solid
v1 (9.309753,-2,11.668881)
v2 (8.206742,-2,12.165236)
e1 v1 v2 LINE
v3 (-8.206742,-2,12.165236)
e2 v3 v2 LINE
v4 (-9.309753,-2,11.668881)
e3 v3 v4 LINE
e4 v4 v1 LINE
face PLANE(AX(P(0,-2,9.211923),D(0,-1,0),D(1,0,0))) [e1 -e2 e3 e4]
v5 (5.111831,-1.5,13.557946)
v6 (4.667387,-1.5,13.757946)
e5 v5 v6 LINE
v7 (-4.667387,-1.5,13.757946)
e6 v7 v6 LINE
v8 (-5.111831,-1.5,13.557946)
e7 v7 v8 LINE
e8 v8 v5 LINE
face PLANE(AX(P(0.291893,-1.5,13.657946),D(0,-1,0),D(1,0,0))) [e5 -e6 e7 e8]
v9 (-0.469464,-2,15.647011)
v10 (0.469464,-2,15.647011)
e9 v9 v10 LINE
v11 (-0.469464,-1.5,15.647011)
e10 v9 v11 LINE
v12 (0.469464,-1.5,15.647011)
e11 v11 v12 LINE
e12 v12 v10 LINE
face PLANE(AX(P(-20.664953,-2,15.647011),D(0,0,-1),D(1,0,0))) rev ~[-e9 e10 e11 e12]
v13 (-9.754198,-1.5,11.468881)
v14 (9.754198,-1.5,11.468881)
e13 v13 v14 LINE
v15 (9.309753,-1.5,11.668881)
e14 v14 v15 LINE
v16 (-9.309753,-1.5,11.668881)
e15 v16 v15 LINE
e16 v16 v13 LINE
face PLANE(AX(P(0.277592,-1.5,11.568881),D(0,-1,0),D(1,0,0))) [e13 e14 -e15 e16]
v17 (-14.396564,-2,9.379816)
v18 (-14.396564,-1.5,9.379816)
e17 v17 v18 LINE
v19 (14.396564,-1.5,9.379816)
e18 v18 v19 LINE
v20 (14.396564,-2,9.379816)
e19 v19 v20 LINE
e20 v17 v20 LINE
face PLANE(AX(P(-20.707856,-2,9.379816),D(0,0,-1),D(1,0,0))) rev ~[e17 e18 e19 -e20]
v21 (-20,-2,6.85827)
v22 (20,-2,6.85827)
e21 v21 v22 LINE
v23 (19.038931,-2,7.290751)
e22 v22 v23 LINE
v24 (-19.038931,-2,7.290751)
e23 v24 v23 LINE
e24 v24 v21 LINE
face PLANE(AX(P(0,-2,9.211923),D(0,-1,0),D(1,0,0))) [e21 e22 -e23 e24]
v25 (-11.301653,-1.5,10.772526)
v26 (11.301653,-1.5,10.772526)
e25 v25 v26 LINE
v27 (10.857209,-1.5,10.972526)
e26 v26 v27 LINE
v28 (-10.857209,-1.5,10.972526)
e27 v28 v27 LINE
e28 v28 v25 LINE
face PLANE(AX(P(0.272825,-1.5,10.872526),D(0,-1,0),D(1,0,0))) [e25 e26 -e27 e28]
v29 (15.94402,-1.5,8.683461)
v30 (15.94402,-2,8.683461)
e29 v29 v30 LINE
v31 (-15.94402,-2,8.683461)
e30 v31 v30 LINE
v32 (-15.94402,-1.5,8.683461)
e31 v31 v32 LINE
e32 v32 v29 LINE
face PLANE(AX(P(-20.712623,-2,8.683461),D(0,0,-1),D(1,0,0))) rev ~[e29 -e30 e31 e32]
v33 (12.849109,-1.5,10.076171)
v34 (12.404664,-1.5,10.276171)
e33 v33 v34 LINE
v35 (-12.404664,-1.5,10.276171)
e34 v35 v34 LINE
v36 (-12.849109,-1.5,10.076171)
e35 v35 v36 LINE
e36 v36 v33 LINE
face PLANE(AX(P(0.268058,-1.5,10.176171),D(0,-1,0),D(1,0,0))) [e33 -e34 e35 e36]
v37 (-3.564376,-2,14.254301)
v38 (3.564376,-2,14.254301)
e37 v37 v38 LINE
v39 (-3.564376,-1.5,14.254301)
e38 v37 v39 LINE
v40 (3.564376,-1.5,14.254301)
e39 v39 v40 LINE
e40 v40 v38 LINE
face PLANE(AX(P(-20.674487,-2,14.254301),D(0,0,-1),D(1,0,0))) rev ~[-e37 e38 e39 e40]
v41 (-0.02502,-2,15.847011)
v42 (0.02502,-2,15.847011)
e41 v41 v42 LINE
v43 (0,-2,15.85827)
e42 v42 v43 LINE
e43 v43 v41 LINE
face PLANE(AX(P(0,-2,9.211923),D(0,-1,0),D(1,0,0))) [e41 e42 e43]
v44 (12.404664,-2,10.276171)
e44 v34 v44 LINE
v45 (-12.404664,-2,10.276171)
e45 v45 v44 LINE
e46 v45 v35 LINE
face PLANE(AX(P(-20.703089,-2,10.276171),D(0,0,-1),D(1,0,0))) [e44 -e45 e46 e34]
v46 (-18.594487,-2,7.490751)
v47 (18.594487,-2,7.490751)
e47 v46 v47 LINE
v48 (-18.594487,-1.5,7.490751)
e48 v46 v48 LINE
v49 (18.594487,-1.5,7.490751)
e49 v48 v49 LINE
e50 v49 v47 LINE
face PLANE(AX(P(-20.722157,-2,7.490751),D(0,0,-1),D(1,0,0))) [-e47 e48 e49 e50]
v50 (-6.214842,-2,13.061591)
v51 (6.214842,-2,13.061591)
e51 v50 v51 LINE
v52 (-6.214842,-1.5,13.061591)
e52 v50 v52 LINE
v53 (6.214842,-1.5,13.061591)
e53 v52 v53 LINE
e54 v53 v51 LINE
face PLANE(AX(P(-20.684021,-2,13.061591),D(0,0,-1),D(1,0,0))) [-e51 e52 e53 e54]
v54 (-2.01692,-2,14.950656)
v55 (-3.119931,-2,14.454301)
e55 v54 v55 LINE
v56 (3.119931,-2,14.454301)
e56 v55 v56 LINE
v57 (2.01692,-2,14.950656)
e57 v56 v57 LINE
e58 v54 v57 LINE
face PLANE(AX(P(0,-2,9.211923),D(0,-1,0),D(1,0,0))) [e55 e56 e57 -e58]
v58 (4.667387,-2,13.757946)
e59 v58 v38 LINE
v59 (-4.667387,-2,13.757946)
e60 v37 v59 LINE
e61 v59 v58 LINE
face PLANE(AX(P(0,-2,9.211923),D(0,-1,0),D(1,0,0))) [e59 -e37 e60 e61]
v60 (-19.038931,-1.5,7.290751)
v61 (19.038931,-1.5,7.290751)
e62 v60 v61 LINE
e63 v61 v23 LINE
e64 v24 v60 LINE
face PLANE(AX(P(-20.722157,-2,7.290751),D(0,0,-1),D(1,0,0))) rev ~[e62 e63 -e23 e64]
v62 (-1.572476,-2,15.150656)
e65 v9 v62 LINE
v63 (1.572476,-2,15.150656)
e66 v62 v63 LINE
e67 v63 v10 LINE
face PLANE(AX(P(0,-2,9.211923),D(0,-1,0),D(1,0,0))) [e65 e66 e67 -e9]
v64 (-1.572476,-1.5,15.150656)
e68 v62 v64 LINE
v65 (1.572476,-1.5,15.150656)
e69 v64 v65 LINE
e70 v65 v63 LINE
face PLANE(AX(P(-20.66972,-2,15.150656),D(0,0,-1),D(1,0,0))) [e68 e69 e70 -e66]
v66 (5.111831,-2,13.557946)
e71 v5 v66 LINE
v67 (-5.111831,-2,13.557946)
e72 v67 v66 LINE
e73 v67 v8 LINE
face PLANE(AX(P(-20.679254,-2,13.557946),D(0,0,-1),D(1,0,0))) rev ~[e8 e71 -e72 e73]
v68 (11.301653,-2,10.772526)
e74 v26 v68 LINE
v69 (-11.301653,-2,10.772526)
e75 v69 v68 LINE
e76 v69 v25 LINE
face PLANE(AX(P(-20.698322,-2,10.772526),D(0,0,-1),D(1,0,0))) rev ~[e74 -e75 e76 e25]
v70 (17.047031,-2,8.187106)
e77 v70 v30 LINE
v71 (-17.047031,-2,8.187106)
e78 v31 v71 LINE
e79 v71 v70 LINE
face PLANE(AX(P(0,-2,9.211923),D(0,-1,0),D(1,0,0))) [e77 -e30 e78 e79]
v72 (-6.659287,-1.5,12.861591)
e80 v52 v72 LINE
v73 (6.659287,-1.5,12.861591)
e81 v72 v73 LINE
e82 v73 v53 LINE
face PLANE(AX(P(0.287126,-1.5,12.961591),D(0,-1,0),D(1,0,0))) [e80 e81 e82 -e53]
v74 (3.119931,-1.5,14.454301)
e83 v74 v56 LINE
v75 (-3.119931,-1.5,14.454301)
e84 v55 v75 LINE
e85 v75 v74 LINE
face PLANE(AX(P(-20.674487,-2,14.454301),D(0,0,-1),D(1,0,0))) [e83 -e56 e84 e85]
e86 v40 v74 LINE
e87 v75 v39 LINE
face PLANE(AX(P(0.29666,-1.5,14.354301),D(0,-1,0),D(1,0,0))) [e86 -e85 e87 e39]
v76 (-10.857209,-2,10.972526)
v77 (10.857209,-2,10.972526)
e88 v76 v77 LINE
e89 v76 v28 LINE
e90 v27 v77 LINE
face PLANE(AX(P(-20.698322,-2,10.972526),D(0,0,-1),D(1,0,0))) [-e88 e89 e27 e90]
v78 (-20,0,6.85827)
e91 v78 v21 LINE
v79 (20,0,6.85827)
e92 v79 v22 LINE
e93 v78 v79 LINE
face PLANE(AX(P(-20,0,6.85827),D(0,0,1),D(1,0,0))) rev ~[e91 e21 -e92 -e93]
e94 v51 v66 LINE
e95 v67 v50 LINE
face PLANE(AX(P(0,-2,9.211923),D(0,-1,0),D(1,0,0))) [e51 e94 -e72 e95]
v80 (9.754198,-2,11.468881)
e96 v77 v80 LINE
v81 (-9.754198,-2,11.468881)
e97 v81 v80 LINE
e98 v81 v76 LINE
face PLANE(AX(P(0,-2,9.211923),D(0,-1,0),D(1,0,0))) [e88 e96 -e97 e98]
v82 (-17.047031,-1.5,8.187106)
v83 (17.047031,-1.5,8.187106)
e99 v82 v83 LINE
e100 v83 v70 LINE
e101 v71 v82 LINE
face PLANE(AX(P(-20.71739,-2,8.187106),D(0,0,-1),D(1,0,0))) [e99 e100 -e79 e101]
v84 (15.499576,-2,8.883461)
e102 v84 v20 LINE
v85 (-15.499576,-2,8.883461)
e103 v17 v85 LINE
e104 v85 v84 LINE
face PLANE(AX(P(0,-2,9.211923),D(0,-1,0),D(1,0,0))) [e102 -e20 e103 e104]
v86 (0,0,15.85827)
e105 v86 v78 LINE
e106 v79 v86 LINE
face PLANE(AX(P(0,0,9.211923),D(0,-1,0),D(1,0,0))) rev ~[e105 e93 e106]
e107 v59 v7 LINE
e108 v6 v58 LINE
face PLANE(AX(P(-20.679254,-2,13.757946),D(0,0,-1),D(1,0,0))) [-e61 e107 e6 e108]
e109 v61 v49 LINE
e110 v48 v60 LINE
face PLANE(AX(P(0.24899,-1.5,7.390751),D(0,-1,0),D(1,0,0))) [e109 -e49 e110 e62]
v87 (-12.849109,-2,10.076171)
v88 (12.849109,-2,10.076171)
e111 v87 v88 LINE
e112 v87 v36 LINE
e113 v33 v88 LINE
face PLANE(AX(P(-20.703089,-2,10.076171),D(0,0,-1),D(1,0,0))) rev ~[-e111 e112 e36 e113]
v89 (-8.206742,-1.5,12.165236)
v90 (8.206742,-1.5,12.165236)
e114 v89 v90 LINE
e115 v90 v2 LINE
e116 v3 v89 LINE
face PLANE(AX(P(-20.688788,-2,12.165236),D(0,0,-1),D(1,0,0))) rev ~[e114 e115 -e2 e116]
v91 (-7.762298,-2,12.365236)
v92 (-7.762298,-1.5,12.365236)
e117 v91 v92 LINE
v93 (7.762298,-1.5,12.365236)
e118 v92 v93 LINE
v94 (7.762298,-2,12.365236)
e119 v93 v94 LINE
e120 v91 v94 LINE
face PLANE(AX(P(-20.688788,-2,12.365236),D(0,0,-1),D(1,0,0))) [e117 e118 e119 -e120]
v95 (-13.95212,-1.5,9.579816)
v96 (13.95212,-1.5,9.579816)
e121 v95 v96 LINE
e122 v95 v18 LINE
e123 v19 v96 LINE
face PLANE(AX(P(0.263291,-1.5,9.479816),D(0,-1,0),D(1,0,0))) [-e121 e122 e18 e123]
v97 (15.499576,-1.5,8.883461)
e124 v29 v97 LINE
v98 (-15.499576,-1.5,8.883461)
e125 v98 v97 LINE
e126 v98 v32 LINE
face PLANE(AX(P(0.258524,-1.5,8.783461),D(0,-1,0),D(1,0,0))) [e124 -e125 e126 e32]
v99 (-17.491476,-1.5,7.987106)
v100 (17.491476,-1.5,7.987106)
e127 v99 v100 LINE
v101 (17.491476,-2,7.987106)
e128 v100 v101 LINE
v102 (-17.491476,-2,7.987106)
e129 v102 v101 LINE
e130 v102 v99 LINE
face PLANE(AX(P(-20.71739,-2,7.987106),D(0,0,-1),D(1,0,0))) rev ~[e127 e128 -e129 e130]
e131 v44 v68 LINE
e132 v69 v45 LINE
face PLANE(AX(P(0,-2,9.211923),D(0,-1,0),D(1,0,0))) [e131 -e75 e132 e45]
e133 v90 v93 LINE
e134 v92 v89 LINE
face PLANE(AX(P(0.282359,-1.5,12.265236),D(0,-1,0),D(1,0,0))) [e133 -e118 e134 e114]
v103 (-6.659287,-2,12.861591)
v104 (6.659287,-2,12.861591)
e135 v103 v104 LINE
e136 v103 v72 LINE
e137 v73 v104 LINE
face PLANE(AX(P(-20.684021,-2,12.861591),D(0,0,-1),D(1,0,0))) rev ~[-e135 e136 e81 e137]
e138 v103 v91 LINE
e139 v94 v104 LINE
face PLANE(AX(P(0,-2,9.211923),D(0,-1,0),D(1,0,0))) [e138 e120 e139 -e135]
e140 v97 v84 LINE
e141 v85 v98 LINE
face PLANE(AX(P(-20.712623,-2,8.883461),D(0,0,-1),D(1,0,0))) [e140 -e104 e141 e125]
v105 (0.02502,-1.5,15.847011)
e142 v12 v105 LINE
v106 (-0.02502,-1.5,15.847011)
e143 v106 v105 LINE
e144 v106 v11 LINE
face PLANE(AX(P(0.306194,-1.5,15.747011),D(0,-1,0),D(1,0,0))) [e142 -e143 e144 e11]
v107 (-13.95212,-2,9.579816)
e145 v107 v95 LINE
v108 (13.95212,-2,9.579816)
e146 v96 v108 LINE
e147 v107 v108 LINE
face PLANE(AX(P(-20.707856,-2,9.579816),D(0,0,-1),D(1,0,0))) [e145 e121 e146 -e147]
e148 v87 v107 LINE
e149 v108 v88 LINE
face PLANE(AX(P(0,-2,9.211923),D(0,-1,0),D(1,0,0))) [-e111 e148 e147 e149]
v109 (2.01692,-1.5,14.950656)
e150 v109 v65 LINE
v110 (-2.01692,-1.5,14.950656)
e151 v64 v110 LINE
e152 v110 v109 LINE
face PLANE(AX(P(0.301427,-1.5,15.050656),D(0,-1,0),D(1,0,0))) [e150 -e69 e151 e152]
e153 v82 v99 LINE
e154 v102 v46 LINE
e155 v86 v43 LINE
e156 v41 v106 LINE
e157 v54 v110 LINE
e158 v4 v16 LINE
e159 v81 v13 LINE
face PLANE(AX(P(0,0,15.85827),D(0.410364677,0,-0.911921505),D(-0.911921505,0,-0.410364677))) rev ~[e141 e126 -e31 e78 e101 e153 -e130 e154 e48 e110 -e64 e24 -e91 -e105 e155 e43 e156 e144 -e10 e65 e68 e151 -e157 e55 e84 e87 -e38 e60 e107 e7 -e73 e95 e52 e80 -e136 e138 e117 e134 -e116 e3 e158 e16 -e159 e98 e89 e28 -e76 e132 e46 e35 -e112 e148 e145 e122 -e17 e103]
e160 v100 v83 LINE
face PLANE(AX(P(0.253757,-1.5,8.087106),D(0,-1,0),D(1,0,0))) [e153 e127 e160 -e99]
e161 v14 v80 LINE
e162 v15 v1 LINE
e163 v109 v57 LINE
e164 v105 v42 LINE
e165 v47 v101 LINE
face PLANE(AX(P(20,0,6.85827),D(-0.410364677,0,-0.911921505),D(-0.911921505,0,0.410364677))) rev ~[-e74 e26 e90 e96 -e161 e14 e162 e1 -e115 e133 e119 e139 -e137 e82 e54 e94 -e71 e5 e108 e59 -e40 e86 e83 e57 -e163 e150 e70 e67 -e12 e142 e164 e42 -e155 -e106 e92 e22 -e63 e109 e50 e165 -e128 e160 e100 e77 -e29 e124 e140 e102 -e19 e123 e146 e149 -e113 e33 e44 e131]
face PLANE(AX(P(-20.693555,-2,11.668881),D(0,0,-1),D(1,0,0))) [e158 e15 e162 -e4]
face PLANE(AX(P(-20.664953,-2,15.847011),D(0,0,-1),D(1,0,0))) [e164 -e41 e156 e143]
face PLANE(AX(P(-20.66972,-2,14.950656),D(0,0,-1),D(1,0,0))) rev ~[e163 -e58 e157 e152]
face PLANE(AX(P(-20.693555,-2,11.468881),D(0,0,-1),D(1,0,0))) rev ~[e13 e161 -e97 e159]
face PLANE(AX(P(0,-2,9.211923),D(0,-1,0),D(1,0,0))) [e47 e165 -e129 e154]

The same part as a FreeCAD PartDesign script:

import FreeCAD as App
import Part
import Sketcher
from FreeCAD import Vector
Q = App.Units.Quantity


def add_polygon(sketch, points):
    """Adds a closed chain of lines whose ends are joined by coincident constraints."""
    first, n = sketch.GeometryCount, len(points)
    for a, b in zip(points, points[1:] + points[:1]):
        sketch.addGeometry(Part.LineSegment(App.Vector(*a, 0), App.Vector(*b, 0)), False)
    for i in range(n):
        sketch.addConstraint(Sketcher.Constraint("Coincident", first + i, 2, first + (i + 1) % n, 1))

doc = App.newDocument("Part")
body = doc.addObject("PartDesign::Body", "Body")

sketch1 = doc.addObject("Sketcher::SketchObject", "Sketch")
body.addObject(sketch1)
sketch1.AttachmentSupport = (doc.XZ_Plane, [""])
sketch1.MapMode = "FlatFace"
add_polygon(sketch1, [(-20, 7), (20, 7), (0, 16)])
sketch1.addConstraint([
    Sketcher.Constraint("Horizontal", 0),
    Sketcher.Constraint("PointOnObject", 1, 2, -2),
    Sketcher.Constraint("Equal", 1, 2),
    Sketcher.Constraint("DistanceX", 0, 1, 0, 2, Q("40 mm")),
    Sketcher.Constraint("DistanceY", 0, 2, 1, 2, Q("9 mm")),
    Sketcher.Constraint("DistanceY", -1, 1, 0, 2, Q("6.85827 mm")),
])
pad1 = doc.addObject("PartDesign::Pad", "Pad")
body.addObject(pad1)
pad1.Profile = sketch1
pad1.Length = 2

sketch2 = doc.addObject("Sketcher::SketchObject", "Sketch001")
body.addObject(sketch2)
sketch2.AttachmentSupport = (doc.XZ_Plane, [""])
sketch2.MapMode = "FlatFace"
sketch2.AttachmentOffset = App.Placement(Vector(0, 0, 2), App.Rotation())
add_polygon(sketch2, [(-20.72, 7.49), (-20.72, 7.29), (21.22, 7.29), (21.22, 7.49)])
add_polygon(sketch2, [(-20.72, 8.19), (-20.72, 7.99), (21.22, 7.99), (21.22, 8.19)])
add_polygon(sketch2, [(-20.71, 8.88), (-20.71, 8.68), (21.23, 8.68), (21.23, 8.88)])
add_polygon(sketch2, [(-20.71, 9.58), (-20.71, 9.38), (21.23, 9.38), (21.23, 9.58)])
add_polygon(sketch2, [(-20.7, 10.28), (-20.7, 10.08), (21.24, 10.08), (21.24, 10.28)])
add_polygon(sketch2, [(-20.7, 10.97), (-20.7, 10.77), (21.24, 10.77), (21.24, 10.97)])
add_polygon(sketch2, [(-20.69, 11.67), (-20.69, 11.47), (21.25, 11.47), (21.25, 11.67)])
add_polygon(sketch2, [(-20.69, 12.37), (-20.69, 12.17), (21.25, 12.17), (21.25, 12.37)])
add_polygon(sketch2, [(-20.68, 13.06), (-20.68, 12.86), (21.26, 12.86), (21.26, 13.06)])
add_polygon(sketch2, [(-20.68, 13.76), (-20.68, 13.56), (21.26, 13.56), (21.26, 13.76)])
add_polygon(sketch2, [(-20.67, 14.45), (-20.67, 14.25), (21.27, 14.25), (21.27, 14.45)])
add_polygon(sketch2, [(-20.67, 15.15), (-20.67, 14.95), (21.27, 14.95), (21.27, 15.15)])
add_polygon(sketch2, [(-20.66, 15.85), (-20.66, 15.65), (21.28, 15.65), (21.28, 15.85)])
sketch2.addConstraint([
    Sketcher.Constraint("Vertical", 0),
    Sketcher.Constraint("Horizontal", 1),
    Sketcher.Constraint("Vertical", 2),
    Sketcher.Constraint("Horizontal", 3),
    Sketcher.Constraint("Vertical", 4),
    Sketcher.Constraint("Horizontal", 5),
    Sketcher.Constraint("Vertical", 6),
    Sketcher.Constraint("Horizontal", 7),
    Sketcher.Constraint("Vertical", 8),
    Sketcher.Constraint("Horizontal", 9),
    Sketcher.Constraint("Vertical", 10),
    Sketcher.Constraint("Horizontal", 11),
    Sketcher.Constraint("Vertical", 12),
    Sketcher.Constraint("Horizontal", 13),
    Sketcher.Constraint("Vertical", 14),
    Sketcher.Constraint("Horizontal", 15),
    Sketcher.Constraint("Vertical", 16),
    Sketcher.Constraint("Horizontal", 17),
    Sketcher.Constraint("Vertical", 18),
    Sketcher.Constraint("Horizontal", 19),
    Sketcher.Constraint("Vertical", 20),
    Sketcher.Constraint("Horizontal", 21),
    Sketcher.Constraint("Vertical", 22),
    Sketcher.Constraint("Horizontal", 23),
    Sketcher.Constraint("Vertical", 24),
    Sketcher.Constraint("Horizontal", 25),
    Sketcher.Constraint("Vertical", 26),
    Sketcher.Constraint("Horizontal", 27),
    Sketcher.Constraint("Vertical", 28),
    Sketcher.Constraint("Horizontal", 29),
    Sketcher.Constraint("Vertical", 30),
    Sketcher.Constraint("Horizontal", 31),
    Sketcher.Constraint("Vertical", 32),
    Sketcher.Constraint("Horizontal", 33),
    Sketcher.Constraint("Vertical", 34),
    Sketcher.Constraint("Horizontal", 35),
    Sketcher.Constraint("Vertical", 36),
    Sketcher.Constraint("Horizontal", 37),
    Sketcher.Constraint("Vertical", 38),
    Sketcher.Constraint("Horizontal", 39),
    Sketcher.Constraint("Vertical", 40),
    Sketcher.Constraint("Horizontal", 41),
    Sketcher.Constraint("Vertical", 42),
    Sketcher.Constraint("Horizontal", 43),
    Sketcher.Constraint("Vertical", 44),
    Sketcher.Constraint("Horizontal", 45),
    Sketcher.Constraint("Vertical", 46),
    Sketcher.Constraint("Horizontal", 47),
    Sketcher.Constraint("Vertical", 48),
    Sketcher.Constraint("Horizontal", 49),
    Sketcher.Constraint("Vertical", 50),
    Sketcher.Constraint("Horizontal", 51),
    Sketcher.Constraint("Equal", 3, 5),
    Sketcher.Constraint("Equal", 7, 9),
    Sketcher.Constraint("Equal", 11, 13),
    Sketcher.Constraint("Equal", 15, 17),
    Sketcher.Constraint("Equal", 19, 21),
    Sketcher.Constraint("Equal", 23, 25),
    Sketcher.Constraint("Equal", 27, 29),
    Sketcher.Constraint("Equal", 31, 33),
    Sketcher.Constraint("Equal", 35, 37),
    Sketcher.Constraint("Equal", 39, 41),
    Sketcher.Constraint("Equal", 43, 45),
    Sketcher.Constraint("Equal", 47, 49),
    Sketcher.Constraint("Equal", 2, 4),
    Sketcher.Constraint("Equal", 6, 8),
    Sketcher.Constraint("Equal", 10, 12),
    Sketcher.Constraint("Equal", 14, 16),
    Sketcher.Constraint("Equal", 18, 20),
    Sketcher.Constraint("Equal", 22, 24),
    Sketcher.Constraint("Equal", 26, 28),
    Sketcher.Constraint("Equal", 30, 32),
    Sketcher.Constraint("Equal", 34, 36),
    Sketcher.Constraint("Equal", 38, 40),
    Sketcher.Constraint("Equal", 42, 44),
    Sketcher.Constraint("Equal", 46, 48),
    Sketcher.Constraint("DistanceY", 0, 2, 0, 1, Q("0.2 mm")),
    Sketcher.Constraint("DistanceY", -1, 1, 40, 2, Q("14.254301 mm")),
    Sketcher.Constraint("DistanceX", 3, 2, 12, 2, Q("0.014301 mm")),
    Sketcher.Constraint("DistanceX", 7, 2, 16, 2, Q("0.014301 mm")),
    Sketcher.Constraint("DistanceX", 11, 2, 20, 2, Q("0.014301 mm")),
    Sketcher.Constraint("DistanceX", 15, 2, 24, 2, Q("0.014301 mm")),
    Sketcher.Constraint("DistanceX", 19, 2, 28, 2, Q("0.014301 mm")),
    Sketcher.Constraint("DistanceX", 23, 2, 32, 2, Q("0.014301 mm")),
    Sketcher.Constraint("DistanceX", 27, 2, 36, 2, Q("0.014301 mm")),
    Sketcher.Constraint("DistanceX", 31, 2, 40, 2, Q("0.014301 mm")),
    Sketcher.Constraint("DistanceX", 35, 2, 44, 2, Q("0.014301 mm")),
    Sketcher.Constraint("DistanceX", 39, 2, 48, 2, Q("0.014301 mm")),
    Sketcher.Constraint("DistanceX", 1, 1, 1, 2, Q("41.942294 mm")),
    Sketcher.Constraint("DistanceY", -1, 1, 0, 2, Q("7.290751 mm")),
    Sketcher.Constraint("DistanceX", 4, 2, -1, 1, Q("20.71739 mm")),
    Sketcher.Constraint("DistanceY", -1, 1, 8, 2, Q("8.683461 mm")),
    Sketcher.Constraint("DistanceX", -1, 1, 9, 2, Q("21.229671 mm")),
    Sketcher.Constraint("DistanceX", -1, 1, 13, 2, Q("21.234438 mm")),
    Sketcher.Constraint("DistanceY", -1, 1, 16, 2, Q("10.076171 mm")),
    Sketcher.Constraint("DistanceY", -1, 1, 24, 2, Q("11.468881 mm")),
    Sketcher.Constraint("DistanceY", -1, 1, 32, 2, Q("12.861591 mm")),
    Sketcher.Constraint("DistanceY", -1, 1, 48, 2, Q("15.647011 mm")),
    Sketcher.Constraint("DistanceY", 7, 2, 12, 2, Q("1.19271 mm")),
    Sketcher.Constraint("DistanceY", 15, 2, 20, 2, Q("1.19271 mm")),
    Sketcher.Constraint("DistanceY", 23, 2, 28, 2, Q("1.19271 mm")),
    Sketcher.Constraint("DistanceY", 31, 2, 36, 2, Q("1.19271 mm")),
    Sketcher.Constraint("DistanceY", 39, 2, 44, 2, Q("1.19271 mm")),
    Sketcher.Constraint("DistanceY", -1, 1, 4, 2, Q("7.987106 mm")),
])
pocket1 = doc.addObject("PartDesign::Pocket", "Pocket")
body.addObject(pocket1)
pocket1.Profile = sketch2
pocket1.Length = 0.5

doc.recompute()
